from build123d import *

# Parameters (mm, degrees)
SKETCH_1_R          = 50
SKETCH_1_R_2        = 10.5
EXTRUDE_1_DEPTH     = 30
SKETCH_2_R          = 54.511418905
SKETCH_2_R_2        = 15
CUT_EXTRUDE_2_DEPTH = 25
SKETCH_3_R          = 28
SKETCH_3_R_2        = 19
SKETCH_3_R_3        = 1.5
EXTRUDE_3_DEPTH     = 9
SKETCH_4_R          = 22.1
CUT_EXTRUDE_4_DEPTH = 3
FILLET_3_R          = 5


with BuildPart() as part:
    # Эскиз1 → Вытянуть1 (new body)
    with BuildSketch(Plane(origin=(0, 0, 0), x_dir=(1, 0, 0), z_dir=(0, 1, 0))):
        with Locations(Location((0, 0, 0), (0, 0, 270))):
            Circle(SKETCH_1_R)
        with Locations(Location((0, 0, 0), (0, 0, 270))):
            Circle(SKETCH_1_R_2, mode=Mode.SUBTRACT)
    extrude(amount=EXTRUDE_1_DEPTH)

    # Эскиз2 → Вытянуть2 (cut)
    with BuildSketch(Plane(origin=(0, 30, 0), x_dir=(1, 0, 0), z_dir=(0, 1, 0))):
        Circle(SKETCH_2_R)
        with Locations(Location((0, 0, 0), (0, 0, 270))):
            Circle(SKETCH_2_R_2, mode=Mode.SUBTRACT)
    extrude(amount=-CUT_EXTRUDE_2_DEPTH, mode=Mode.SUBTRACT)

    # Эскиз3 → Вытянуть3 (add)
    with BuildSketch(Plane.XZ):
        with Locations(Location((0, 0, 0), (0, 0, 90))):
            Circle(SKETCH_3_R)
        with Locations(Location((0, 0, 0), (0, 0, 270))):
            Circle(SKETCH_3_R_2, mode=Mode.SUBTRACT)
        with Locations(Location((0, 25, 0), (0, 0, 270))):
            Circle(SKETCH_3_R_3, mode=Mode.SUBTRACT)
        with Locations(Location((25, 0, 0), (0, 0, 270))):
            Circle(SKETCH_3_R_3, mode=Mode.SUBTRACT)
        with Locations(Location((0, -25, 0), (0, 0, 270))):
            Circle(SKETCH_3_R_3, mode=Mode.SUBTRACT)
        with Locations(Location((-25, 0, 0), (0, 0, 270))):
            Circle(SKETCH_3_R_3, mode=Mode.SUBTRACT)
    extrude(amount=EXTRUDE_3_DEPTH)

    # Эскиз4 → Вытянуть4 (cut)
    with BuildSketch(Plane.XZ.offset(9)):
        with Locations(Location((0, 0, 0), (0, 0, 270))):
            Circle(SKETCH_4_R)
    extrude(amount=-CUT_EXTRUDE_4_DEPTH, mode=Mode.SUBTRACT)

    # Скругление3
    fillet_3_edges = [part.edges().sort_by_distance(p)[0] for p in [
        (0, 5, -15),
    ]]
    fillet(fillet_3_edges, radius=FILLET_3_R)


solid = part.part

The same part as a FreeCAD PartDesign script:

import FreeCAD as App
import Part
import Sketcher

V = App.Vector
Q = App.Units.Quantity


def edges_at(feature, points):
    """Names of the edges that pass closest to the given points."""
    edges = feature.Shape.Edges
    near = lambda p: min(range(len(edges)), key=lambda i: edges[i].distToShape(Part.Vertex(*p))[0])
    return sorted({f"Edge{near(p) + 1}" for p in points})

doc = App.newDocument("Part")
body = doc.addObject("PartDesign::Body", "Body")

sketch1 = body.newObject("Sketcher::SketchObject", "Sketch")
sketch1.AttachmentSupport = (doc.getObject("XZ_Plane"), [""])
sketch1.MapMode = "FlatFace"
sketch1.addGeometry(Part.Circle(V(0, 0, 0), V(0, 0, 1), 50), False)
sketch1.addGeometry(Part.Circle(V(0, 0, 0), V(0, 0, 1), 10), False)
sketch1.addConstraint(Sketcher.Constraint("Coincident", 0, 3, -1, 1))
sketch1.addConstraint(Sketcher.Constraint("Coincident", 1, 3, -1, 1))
sketch1.addConstraint(Sketcher.Constraint("Diameter", 0, Q("100 mm")))
sketch1.addConstraint(Sketcher.Constraint("Diameter", 1, Q("21 mm")))
pad1 = body.newObject("PartDesign::Pad", "Pad")
pad1.Profile = sketch1
pad1.Length = 30
pad1.Reversed = True

sketch2 = body.newObject("Sketcher::SketchObject", "Sketch001")
sketch2.AttachmentSupport = (doc.getObject("XZ_Plane"), [""])
sketch2.MapMode = "FlatFace"
sketch2.AttachmentOffset = App.Placement(V(0, 0, -30), App.Rotation())
sketch2.addGeometry(Part.Circle(V(0, 0, 0), V(0, 0, 1), 55), False)
sketch2.addGeometry(Part.Circle(V(0, 0, 0), V(0, 0, 1), 15), False)
sketch2.addConstraint(Sketcher.Constraint("Coincident", 0, 3, -1, 1))
sketch2.addConstraint(Sketcher.Constraint("Coincident", 1, 3, -1, 1))
sketch2.addConstraint(Sketcher.Constraint("Diameter", 1, Q("30 mm")))
sketch2.addConstraint(Sketcher.Constraint("Diameter", 0, Q("109.022838 mm")))
pocket1 = body.newObject("PartDesign::Pocket", "Pocket")
pocket1.Profile = sketch2
pocket1.Length = 25
pocket1.Reversed = True

sketch3 = body.newObject("Sketcher::SketchObject", "Sketch002")
sketch3.AttachmentSupport = (doc.getObject("XZ_Plane"), [""])
sketch3.MapMode = "FlatFace"
sketch3.addGeometry(Part.Circle(V(0, 0, 0), V(0, 0, 1), 28), False)
sketch3.addGeometry(Part.Circle(V(0, -25, 0), V(0, 0, 1), 1.5), False)
sketch3.addGeometry(Part.Circle(V(25, 0, 0), V(0, 0, 1), 1.5), False)
sketch3.addGeometry(Part.Circle(V(-25, 0, 0), V(0, 0, 1), 1.5), False)
sketch3.addGeometry(Part.Circle(V(0, 0, 0), V(0, 0, 1), 19), False)
sketch3.addGeometry(Part.Circle(V(0, 25, 0), V(0, 0, 1), 1.5), False)
sketch3.addConstraint(Sketcher.Constraint("Coincident", 0, 3, -1, 1))
sketch3.addConstraint(Sketcher.Constraint("Coincident", 4, 3, -1, 1))
sketch3.addConstraint(Sketcher.Constraint("Equal", 1, 2))
sketch3.addConstraint(Sketcher.Constraint("Equal", 2, 3))
sketch3.addConstraint(Sketcher.Constraint("Equal", 3, 5))
sketch3.addConstraint(Sketcher.Constraint("Symmetric", 2, 3, 3, 3, -1, 1))
sketch3.addConstraint(Sketcher.Constraint("Symmetric", 1, 3, 5, 3, -1, 1))
sketch3.addConstraint(Sketcher.Constraint("PointOnObject", 1, 3, -2))
sketch3.addConstraint(Sketcher.Constraint("PointOnObject", 2, 3, -1))
sketch3.addConstraint(Sketcher.Constraint("Diameter", 0, Q("56 mm")))
sketch3.addConstraint(Sketcher.Constraint("Diameter", 1, Q("3 mm")))
sketch3.addConstraint(Sketcher.Constraint("Diameter", 4, Q("38 mm")))
sketch3.addConstraint(Sketcher.Constraint("DistanceY", 1, 3, -1, 1, Q("25 mm")))
sketch3.addConstraint(Sketcher.Constraint("DistanceX", -1, 1, 2, 3, Q("25 mm")))
pad2 = body.newObject("PartDesign::Pad", "Pad001")
pad2.Profile = sketch3
pad2.Length = 9

sketch4 = body.newObject("Sketcher::SketchObject", "Sketch003")
sketch4.AttachmentSupport = (doc.getObject("XZ_Plane"), [""])
sketch4.MapMode = "FlatFace"
sketch4.AttachmentOffset = App.Placement(V(0, 0, 9), App.Rotation())
sketch4.addGeometry(Part.Circle(V(0, 0, 0), V(0, 0, 1), 22), False)
sketch4.addConstraint(Sketcher.Constraint("Coincident", 0, 3, -1, 1))
sketch4.addConstraint(Sketcher.Constraint("Diameter", 0, Q("44.2 mm")))
pocket2 = body.newObject("PartDesign::Pocket", "Pocket001")
pocket2.Profile = sketch4
pocket2.Length = 3
doc.recompute()

fillet = body.newObject("PartDesign::Fillet", "Fillet")
fillet.Base = (pocket2, edges_at(pocket2, [(0, 5, -15)]))
fillet.Radius = 5

doc.recompute()
